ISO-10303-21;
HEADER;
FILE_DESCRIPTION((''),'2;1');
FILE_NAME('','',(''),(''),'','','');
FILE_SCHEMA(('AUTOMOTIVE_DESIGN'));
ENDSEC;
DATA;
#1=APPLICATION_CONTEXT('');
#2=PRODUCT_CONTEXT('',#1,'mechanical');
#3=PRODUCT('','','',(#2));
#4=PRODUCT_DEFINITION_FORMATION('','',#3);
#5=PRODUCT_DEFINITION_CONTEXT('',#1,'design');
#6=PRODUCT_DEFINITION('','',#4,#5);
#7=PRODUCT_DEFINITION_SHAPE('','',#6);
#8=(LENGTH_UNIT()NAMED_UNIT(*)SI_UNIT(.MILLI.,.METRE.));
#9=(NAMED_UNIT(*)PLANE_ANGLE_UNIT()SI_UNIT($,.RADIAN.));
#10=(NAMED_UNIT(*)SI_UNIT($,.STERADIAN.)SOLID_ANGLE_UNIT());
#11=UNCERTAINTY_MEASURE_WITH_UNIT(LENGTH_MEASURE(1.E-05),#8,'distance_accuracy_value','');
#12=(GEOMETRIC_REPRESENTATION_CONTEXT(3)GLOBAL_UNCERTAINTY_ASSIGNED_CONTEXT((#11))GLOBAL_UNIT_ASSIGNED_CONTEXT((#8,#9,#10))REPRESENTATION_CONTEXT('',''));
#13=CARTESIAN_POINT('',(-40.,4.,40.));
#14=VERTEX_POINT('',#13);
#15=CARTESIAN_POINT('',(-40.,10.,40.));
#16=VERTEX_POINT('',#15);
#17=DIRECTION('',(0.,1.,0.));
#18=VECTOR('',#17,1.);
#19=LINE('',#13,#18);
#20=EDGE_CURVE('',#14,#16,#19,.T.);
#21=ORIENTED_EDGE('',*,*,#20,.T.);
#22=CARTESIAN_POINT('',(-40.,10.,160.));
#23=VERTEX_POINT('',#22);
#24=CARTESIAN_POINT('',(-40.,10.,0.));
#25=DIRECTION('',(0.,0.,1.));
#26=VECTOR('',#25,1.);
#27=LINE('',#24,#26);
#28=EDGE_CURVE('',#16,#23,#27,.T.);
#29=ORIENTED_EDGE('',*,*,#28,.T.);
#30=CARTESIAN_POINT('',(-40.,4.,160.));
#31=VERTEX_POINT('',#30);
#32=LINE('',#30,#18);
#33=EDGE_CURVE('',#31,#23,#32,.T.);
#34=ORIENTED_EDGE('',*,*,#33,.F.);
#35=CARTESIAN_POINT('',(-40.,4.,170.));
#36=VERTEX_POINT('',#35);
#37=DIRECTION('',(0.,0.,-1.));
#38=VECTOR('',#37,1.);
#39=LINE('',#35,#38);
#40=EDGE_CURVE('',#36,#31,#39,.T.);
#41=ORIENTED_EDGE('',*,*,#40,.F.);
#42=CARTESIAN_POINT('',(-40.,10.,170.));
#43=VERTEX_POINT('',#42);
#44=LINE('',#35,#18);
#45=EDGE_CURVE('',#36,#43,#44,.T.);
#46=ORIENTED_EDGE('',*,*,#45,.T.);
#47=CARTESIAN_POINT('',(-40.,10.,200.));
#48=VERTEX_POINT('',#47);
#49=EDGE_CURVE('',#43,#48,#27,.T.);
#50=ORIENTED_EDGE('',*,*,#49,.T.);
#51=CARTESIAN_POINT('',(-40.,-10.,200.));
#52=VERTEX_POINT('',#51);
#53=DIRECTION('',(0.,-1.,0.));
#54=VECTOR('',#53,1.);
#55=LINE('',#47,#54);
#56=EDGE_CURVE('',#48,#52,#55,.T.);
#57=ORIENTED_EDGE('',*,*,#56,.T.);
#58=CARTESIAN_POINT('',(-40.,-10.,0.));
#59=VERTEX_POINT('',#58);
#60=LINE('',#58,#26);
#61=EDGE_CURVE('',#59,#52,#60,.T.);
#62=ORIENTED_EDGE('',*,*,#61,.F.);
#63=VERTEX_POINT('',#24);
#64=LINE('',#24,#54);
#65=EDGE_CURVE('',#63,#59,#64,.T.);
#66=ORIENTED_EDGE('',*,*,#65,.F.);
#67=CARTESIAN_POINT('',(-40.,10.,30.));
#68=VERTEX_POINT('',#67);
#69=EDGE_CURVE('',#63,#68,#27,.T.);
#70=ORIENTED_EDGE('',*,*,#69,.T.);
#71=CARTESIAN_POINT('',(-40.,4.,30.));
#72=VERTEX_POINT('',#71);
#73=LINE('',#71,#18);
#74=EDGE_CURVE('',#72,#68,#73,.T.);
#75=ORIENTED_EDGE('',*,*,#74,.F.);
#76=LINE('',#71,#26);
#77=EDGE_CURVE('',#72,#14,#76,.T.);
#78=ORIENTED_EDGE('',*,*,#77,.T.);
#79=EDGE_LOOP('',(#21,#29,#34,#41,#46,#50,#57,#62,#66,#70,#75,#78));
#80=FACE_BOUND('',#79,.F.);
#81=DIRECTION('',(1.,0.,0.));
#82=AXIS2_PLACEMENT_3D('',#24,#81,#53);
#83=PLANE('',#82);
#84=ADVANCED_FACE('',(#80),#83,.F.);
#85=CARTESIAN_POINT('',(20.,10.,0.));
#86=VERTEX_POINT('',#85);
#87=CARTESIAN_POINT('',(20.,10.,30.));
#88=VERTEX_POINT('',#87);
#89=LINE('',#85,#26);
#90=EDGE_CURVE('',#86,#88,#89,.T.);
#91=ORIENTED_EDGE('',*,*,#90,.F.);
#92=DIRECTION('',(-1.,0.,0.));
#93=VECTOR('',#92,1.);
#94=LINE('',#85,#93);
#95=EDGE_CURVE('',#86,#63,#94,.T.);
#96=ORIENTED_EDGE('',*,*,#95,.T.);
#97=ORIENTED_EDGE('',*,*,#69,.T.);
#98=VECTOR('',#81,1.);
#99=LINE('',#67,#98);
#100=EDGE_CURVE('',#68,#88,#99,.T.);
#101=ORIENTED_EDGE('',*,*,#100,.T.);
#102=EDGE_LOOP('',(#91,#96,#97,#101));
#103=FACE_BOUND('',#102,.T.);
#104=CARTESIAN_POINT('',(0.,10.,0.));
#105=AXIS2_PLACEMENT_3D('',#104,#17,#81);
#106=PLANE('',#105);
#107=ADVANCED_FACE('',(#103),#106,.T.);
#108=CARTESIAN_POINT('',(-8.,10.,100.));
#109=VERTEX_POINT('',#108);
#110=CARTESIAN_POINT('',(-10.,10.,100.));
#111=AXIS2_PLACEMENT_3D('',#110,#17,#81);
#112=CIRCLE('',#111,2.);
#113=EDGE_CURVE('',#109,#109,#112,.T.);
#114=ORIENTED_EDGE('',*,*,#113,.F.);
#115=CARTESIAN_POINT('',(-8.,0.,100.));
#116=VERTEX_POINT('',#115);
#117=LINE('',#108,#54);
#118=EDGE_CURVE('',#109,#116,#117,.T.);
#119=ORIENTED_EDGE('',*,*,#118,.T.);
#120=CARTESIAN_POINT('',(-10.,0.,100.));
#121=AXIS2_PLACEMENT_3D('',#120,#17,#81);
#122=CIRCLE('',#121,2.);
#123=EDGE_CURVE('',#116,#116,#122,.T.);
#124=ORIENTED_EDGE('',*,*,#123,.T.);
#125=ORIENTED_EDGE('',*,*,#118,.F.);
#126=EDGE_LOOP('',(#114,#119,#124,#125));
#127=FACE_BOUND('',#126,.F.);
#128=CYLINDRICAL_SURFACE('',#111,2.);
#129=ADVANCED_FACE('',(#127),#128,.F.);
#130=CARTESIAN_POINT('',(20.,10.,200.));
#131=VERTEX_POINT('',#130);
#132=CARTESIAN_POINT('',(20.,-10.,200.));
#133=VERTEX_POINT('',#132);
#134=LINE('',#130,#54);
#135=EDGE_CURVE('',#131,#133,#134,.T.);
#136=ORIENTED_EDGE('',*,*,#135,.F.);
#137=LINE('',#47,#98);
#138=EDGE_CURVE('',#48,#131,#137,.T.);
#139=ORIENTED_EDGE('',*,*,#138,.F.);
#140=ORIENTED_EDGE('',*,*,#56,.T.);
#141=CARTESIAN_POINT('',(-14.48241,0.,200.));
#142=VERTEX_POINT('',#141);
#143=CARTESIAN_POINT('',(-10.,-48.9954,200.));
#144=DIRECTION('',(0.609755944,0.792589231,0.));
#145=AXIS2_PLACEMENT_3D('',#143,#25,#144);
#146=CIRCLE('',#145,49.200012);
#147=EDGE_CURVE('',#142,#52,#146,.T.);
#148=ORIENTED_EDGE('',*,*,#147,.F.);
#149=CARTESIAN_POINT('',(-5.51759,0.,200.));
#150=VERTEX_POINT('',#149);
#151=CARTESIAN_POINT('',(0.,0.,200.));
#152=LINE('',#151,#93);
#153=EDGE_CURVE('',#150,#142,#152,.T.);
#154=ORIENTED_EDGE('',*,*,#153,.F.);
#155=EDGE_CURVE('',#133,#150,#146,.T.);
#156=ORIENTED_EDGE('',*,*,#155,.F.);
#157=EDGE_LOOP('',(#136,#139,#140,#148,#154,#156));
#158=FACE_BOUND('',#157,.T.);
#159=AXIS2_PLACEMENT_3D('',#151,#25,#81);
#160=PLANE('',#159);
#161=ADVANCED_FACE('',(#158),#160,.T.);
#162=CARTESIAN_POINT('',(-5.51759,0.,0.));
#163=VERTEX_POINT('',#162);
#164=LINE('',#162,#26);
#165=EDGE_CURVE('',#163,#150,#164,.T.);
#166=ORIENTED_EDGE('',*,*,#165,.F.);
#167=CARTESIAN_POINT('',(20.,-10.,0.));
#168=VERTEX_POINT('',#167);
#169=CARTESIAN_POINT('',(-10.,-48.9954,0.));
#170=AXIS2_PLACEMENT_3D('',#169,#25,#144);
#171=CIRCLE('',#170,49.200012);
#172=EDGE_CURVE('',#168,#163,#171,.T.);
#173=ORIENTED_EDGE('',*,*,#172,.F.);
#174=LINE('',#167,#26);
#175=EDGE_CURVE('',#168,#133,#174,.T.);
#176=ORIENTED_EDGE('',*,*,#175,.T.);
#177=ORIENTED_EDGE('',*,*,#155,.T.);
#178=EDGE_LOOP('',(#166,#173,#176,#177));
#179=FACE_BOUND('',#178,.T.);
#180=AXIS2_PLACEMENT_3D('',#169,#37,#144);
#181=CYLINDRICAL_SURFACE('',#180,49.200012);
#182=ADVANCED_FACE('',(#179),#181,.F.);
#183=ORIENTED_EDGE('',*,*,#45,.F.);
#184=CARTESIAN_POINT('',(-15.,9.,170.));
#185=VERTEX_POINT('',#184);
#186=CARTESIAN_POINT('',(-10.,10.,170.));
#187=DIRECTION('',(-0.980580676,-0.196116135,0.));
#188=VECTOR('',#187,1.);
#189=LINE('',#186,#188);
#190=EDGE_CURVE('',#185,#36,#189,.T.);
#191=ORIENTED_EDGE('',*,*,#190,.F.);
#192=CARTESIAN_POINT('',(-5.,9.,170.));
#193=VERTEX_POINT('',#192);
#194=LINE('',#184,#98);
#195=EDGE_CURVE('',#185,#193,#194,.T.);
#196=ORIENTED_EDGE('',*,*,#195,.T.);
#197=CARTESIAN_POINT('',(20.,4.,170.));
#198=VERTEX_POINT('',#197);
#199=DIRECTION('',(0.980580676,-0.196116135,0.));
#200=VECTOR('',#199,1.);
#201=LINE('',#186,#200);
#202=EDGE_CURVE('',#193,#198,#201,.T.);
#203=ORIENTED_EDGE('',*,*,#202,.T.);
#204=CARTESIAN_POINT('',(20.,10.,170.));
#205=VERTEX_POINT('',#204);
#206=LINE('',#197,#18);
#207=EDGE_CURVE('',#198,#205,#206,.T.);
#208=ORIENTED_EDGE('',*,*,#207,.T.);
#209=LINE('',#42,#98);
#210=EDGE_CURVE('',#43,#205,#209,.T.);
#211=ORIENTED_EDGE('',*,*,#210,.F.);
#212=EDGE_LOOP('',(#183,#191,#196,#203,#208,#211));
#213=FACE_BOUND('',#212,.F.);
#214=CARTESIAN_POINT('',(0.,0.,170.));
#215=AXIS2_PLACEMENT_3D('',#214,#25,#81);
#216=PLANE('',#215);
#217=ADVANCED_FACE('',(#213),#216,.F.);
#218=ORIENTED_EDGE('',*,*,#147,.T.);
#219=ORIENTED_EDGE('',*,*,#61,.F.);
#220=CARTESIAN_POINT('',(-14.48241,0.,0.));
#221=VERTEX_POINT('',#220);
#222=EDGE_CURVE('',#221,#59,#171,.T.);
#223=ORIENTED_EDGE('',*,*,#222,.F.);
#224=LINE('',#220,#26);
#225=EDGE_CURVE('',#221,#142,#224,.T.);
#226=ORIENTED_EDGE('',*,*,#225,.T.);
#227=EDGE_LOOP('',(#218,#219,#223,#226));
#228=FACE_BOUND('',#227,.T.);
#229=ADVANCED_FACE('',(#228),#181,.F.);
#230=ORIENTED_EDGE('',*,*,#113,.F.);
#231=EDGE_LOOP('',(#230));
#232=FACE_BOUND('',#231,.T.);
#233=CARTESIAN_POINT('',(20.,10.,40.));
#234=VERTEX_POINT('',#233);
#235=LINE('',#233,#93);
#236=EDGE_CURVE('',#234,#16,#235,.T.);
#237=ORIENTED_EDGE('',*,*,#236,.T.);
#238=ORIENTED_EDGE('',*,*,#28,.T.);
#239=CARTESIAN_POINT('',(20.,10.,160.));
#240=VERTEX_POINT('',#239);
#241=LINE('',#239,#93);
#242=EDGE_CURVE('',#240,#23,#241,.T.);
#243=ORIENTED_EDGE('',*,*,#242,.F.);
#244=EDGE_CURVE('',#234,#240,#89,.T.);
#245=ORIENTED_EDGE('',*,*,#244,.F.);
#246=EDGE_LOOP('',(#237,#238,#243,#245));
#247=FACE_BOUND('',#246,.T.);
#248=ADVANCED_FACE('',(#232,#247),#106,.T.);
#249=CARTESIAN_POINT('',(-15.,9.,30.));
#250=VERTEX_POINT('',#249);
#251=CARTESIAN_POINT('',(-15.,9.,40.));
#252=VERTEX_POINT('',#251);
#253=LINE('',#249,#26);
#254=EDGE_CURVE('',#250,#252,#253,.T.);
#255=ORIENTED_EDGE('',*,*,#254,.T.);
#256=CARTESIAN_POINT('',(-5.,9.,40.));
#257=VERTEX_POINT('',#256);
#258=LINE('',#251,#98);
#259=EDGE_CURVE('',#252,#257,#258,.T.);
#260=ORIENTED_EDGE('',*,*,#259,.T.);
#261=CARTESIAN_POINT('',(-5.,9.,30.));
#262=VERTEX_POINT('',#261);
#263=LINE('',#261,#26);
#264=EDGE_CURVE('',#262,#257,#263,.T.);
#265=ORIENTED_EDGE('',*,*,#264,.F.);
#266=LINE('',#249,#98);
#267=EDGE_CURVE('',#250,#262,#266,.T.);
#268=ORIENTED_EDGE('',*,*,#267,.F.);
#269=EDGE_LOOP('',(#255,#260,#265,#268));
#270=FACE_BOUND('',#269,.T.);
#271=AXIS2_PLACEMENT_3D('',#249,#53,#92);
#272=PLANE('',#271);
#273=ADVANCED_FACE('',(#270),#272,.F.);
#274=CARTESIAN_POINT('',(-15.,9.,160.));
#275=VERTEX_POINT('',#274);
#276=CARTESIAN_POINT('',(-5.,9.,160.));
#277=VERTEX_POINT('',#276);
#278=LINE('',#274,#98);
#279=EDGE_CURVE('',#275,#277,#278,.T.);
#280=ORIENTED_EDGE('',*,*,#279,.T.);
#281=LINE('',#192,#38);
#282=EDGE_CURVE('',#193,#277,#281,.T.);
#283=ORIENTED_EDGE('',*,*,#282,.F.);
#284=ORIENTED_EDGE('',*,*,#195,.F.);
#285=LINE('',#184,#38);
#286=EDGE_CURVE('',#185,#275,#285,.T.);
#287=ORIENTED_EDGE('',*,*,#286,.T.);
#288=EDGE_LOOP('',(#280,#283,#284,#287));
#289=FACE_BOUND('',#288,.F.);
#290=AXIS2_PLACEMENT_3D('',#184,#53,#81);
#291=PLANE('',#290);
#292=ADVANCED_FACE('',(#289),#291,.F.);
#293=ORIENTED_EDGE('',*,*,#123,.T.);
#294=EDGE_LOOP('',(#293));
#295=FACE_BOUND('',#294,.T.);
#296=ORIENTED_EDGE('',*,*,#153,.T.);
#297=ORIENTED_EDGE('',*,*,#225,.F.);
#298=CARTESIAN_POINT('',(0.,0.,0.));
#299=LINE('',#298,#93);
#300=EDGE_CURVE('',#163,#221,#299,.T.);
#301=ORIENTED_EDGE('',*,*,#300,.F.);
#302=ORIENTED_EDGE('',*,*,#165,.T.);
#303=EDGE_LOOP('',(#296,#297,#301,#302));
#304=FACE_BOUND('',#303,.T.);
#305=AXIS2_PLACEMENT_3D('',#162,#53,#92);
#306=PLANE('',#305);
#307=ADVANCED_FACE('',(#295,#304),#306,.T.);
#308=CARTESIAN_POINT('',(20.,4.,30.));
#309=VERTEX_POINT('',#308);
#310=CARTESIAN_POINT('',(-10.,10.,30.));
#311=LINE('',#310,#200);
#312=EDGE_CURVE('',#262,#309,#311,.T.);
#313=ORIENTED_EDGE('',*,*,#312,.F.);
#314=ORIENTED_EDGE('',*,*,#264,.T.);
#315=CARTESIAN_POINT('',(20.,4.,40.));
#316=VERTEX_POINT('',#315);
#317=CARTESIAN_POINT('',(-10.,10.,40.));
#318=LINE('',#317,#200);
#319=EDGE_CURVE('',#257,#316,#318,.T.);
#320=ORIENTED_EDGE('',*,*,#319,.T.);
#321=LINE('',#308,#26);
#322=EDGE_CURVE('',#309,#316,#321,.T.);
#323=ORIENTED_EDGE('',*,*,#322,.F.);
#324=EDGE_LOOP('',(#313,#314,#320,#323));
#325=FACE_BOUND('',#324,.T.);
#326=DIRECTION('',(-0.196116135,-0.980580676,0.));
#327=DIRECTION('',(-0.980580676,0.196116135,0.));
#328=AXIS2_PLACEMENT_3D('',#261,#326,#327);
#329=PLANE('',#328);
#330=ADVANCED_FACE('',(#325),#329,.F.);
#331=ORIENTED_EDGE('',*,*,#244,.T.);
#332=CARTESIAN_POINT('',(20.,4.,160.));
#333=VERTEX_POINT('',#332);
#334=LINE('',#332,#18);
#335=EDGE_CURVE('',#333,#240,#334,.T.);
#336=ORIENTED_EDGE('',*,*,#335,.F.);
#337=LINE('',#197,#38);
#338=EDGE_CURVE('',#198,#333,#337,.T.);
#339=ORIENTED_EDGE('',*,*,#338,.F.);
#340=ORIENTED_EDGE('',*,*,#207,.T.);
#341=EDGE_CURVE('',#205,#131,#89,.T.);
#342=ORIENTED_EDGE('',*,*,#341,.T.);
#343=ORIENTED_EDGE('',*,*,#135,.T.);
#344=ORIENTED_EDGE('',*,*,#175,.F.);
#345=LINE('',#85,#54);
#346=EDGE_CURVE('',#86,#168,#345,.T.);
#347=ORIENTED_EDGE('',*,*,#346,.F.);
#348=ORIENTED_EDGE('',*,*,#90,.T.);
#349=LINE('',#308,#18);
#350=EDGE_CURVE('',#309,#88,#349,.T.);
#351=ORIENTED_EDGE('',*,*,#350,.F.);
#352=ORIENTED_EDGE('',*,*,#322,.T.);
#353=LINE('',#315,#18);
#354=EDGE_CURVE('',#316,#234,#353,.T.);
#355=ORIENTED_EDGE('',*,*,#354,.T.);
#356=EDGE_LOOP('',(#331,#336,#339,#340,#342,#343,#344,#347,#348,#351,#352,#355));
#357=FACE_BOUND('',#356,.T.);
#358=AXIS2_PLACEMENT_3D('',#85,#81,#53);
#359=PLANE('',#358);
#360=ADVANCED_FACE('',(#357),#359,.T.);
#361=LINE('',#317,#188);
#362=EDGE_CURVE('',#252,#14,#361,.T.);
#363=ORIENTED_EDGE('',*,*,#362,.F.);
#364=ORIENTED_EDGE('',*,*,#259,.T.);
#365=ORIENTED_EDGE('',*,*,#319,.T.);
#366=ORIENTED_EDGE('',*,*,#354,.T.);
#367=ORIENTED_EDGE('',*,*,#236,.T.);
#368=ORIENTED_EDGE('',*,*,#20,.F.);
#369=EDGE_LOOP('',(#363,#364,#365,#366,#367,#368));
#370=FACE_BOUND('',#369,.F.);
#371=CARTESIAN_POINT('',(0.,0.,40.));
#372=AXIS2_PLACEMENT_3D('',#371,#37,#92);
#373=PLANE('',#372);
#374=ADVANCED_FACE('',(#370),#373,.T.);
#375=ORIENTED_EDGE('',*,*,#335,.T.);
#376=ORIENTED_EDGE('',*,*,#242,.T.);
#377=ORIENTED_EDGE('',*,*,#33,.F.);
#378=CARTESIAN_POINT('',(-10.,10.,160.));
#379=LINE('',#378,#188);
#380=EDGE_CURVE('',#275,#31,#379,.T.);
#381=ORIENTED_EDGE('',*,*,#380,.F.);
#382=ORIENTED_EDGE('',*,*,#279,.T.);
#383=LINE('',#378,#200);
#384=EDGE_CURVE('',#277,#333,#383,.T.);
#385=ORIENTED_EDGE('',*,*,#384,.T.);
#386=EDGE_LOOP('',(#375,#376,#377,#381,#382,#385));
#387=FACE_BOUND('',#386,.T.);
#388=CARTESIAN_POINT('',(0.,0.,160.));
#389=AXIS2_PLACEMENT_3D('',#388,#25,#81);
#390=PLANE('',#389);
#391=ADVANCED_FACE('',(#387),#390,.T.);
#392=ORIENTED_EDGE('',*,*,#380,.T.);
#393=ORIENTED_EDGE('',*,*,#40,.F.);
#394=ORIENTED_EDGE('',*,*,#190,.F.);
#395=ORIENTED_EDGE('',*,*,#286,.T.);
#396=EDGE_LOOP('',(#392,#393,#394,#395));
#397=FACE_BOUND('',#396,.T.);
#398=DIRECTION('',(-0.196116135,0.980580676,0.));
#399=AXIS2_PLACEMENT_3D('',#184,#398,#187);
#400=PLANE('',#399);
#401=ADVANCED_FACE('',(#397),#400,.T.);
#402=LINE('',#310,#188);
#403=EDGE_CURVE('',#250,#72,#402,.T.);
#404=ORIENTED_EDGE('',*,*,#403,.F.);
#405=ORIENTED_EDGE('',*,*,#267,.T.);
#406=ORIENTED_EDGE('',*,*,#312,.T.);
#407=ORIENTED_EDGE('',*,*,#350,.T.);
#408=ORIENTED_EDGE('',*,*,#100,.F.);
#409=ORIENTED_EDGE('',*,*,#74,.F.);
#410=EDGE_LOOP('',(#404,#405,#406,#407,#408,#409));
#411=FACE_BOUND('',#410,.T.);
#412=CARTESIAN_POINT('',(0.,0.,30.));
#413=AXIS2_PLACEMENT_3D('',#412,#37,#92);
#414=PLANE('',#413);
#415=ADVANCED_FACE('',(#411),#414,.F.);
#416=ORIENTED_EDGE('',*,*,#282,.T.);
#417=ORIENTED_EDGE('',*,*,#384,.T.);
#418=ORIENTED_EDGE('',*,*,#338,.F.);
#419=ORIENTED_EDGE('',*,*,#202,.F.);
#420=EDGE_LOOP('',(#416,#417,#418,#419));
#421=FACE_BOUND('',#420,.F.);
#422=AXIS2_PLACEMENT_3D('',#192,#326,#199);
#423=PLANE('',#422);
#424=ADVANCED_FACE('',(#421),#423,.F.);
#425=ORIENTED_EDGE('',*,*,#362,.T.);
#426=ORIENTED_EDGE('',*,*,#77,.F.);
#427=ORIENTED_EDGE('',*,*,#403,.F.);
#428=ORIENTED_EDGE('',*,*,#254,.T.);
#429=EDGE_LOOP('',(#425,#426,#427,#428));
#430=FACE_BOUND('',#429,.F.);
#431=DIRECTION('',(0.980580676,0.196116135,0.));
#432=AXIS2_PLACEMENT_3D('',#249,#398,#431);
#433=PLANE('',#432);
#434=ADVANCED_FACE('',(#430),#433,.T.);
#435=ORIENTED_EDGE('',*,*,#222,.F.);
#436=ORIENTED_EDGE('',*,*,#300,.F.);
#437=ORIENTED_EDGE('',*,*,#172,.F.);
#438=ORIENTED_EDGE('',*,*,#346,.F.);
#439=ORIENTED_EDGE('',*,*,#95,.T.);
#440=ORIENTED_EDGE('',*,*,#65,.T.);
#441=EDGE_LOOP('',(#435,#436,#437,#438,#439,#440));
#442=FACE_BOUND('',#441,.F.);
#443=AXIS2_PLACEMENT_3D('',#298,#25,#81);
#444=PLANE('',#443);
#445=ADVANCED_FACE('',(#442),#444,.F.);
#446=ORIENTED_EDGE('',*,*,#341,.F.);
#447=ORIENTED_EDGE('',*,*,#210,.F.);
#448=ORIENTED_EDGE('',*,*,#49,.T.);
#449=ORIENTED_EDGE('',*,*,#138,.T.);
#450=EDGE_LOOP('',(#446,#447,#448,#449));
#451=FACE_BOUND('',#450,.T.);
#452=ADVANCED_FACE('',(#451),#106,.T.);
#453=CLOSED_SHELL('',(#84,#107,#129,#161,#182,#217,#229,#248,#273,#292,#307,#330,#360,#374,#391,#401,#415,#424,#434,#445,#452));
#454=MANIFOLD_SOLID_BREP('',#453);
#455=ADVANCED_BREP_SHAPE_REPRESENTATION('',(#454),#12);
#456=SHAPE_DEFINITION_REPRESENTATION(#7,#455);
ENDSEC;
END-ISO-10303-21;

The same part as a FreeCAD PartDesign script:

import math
import FreeCAD as App
import Part
import Sketcher


def add_polygon(sketch, points):
    """Adds a closed chain of lines whose ends are joined by coincident constraints."""
    first, n = sketch.GeometryCount, len(points)
    for a, b in zip(points, points[1:] + points[:1]):
        sketch.addGeometry(Part.LineSegment(App.Vector(*a, 0), App.Vector(*b, 0)), False)
    for i in range(n):
        sketch.addConstraint(Sketcher.Constraint("Coincident", first + i, 2, first + (i + 1) % n, 1))

doc = App.newDocument("Part")
params = doc.addObject("Spreadsheet::Sheet", "Params")
for row, (alias, value) in enumerate([
    ("sketch1_height", "20 mm"),
    ("sketch1_radius", "49.2 mm"),
    ("pad1_length", "200 mm"),
    ("sketch2_diameter", "4 mm"),
    ("sketch3_height", "6 mm"),
    ("sketch3_width", "60 mm"),
    ("sketch3_width2", "10 mm"),
    ("pocket2_length", "10 mm"),
], start=1):
    params.set(f"A{row}", alias)
    params.set(f"B{row}", "=" + value)
    params.setAlias(f"B{row}", alias)

body = doc.addObject("PartDesign::Body", "Body")

# Sketch on XY plane
sketch1 = body.newObject("Sketcher::SketchObject", "Sketch")
sketch1.AttachmentSupport = (doc.getObject("XY_Plane"), [""])
sketch1.MapMode = "FlatFace"
sketch1.addGeometry([
    Part.LineSegment(App.Vector(20, 10, 0), App.Vector(-40, 10, 0)),  # 0
    Part.LineSegment(App.Vector(-40, 10, 0), App.Vector(-40, -10, 0)),  # 1
    Part.ArcOfCircle(Part.Circle(App.Vector(-10, -49, 0), App.Vector(0, 0, 1), 49), math.radians(95), math.radians(128)),  # 2
    Part.LineSegment(App.Vector(-14, 0, 0), App.Vector(-6, 0, 0)),  # 3
    Part.ArcOfCircle(Part.Circle(App.Vector(-10, -49, 0), App.Vector(0, 0, 1), 49), math.radians(52), math.radians(85)),  # 4
    Part.LineSegment(App.Vector(20, -10, 0), App.Vector(20, 10, 0)),  # 5
], False)
sketch1.addConstraint([
    Sketcher.Constraint("Coincident", 0, 2, 1, 1),
    Sketcher.Constraint("Coincident", 1, 2, 2, 2),
    Sketcher.Constraint("Coincident", 2, 1, 3, 1),
    Sketcher.Constraint("Coincident", 3, 2, 4, 2),
    Sketcher.Constraint("Coincident", 4, 1, 5, 1),
    Sketcher.Constraint("Coincident", 5, 2, 0, 1),
    Sketcher.Constraint("Horizontal", 0),
    Sketcher.Constraint("Vertical", 1),
    Sketcher.Constraint("Horizontal", 3),
    Sketcher.Constraint("Vertical", 5),
    Sketcher.Constraint("Coincident", 4, 3, 2, 3),
    Sketcher.Constraint("Equal", 2, 4),
    Sketcher.Constraint("PointOnObject", 2, 1, -1),
    Sketcher.Constraint("Horizontal", 1, 2, 4, 1),
    Sketcher.Constraint("DistanceY", 1, 2, 1, 1, 20.0),
    Sketcher.Constraint("DistanceX", 2, 3, -1, 1, 10.0),
    Sketcher.Constraint("DistanceY", -1, 1, 0, 2, 10.0),
    Sketcher.Constraint("DistanceX", -1, 1, 4, 1, 20.0),
    Sketcher.Constraint("Radius", 2, 49.2),
])
sketch1.setExpression("Constraints[14]", "Params.sketch1_height")
sketch1.setExpression("Constraints[18]", "Params.sketch1_radius")
pad1 = body.newObject("PartDesign::Pad", "Pad")
pad1.Profile = sketch1
pad1.setExpression("Length", "Params.pad1_length")

# Sketch on XZ plane
sketch2 = body.newObject("Sketcher::SketchObject", "Sketch001")
sketch2.AttachmentSupport = (doc.getObject("XZ_Plane"), [""])
sketch2.MapMode = "FlatFace"
sketch2.AttachmentOffset = App.Placement(App.Vector(0, 0, -10), App.Rotation())
sketch2.addGeometry(Part.Circle(App.Vector(-10, 100, 0), App.Vector(0, 0, 1), 2), False)
sketch2.addConstraint([
    Sketcher.Constraint("Diameter", 0, 4.0),
    Sketcher.Constraint("DistanceX", 0, 3, -1, 1, 10.0),
    Sketcher.Constraint("DistanceY", -1, 1, 0, 3, 100.0),
])
sketch2.setExpression("Constraints[0]", "Params.sketch2_diameter")
pocket1 = body.newObject("PartDesign::Pocket", "Pocket")
pocket1.Profile = sketch2
pocket1.Type = "ThroughAll"
pocket1.Reversed = True

# Sketch on XY plane
sketch3 = body.newObject("Sketcher::SketchObject", "Sketch002")
sketch3.AttachmentSupport = (doc.getObject("XY_Plane"), [""])
sketch3.MapMode = "FlatFace"
sketch3.AttachmentOffset = App.Placement(App.Vector(0, 0, 170), App.Rotation())
add_polygon(sketch3, [(20, 4), (20, 10), (-40, 10), (-40, 4), (-15, 9), (-5, 9)])  # lines 0-5
sketch3.addConstraint([
    Sketcher.Constraint("Vertical", 0),
    Sketcher.Constraint("Horizontal", 1),
    Sketcher.Constraint("Vertical", 2),
    Sketcher.Constraint("Horizontal", 4),
    Sketcher.Constraint("Horizontal", 2, 2, 5, 2),
    Sketcher.Constraint("Equal", 3, 5),
    Sketcher.Constraint("DistanceY", 0, 1, 0, 2, 6.0),
    Sketcher.Constraint("DistanceY", 3, 2, 1, 2, 1.0),
    Sketcher.Constraint("DistanceX", 1, 2, 1, 1, 60.0),
    Sketcher.Constraint("DistanceX", 4, 1, 4, 2, 10.0),
    Sketcher.Constraint("DistanceX", -1, 1, 0, 2, 20.0),
    Sketcher.Constraint("DistanceY", -1, 1, 0, 2, 10.0),
])
sketch3.setExpression("Constraints[12]", "Params.sketch3_height")
sketch3.setExpression("Constraints[14]", "Params.sketch3_width")
sketch3.setExpression("Constraints[15]", "Params.sketch3_width2")
pocket2 = body.newObject("PartDesign::Pocket", "Pocket001")
pocket2.Profile = sketch3
pocket2.setExpression("Length", "Params.pocket2_length")
doc.recompute()

datumplane = body.newObject("PartDesign::Plane", "DatumPlane")
datumplane.AttachmentSupport = (doc.getObject("XY_Plane"), [""])
datumplane.MapMode = "FlatFace"
datumplane.AttachmentOffset = App.Placement(App.Vector(0, 0, 100), App.Rotation())
mirrored = body.newObject("PartDesign::Mirrored", "Mirrored")
mirrored.Originals = [pocket2]
mirrored.MirrorPlane = (datumplane, [""])
body.Tip = mirrored

doc.recompute()
